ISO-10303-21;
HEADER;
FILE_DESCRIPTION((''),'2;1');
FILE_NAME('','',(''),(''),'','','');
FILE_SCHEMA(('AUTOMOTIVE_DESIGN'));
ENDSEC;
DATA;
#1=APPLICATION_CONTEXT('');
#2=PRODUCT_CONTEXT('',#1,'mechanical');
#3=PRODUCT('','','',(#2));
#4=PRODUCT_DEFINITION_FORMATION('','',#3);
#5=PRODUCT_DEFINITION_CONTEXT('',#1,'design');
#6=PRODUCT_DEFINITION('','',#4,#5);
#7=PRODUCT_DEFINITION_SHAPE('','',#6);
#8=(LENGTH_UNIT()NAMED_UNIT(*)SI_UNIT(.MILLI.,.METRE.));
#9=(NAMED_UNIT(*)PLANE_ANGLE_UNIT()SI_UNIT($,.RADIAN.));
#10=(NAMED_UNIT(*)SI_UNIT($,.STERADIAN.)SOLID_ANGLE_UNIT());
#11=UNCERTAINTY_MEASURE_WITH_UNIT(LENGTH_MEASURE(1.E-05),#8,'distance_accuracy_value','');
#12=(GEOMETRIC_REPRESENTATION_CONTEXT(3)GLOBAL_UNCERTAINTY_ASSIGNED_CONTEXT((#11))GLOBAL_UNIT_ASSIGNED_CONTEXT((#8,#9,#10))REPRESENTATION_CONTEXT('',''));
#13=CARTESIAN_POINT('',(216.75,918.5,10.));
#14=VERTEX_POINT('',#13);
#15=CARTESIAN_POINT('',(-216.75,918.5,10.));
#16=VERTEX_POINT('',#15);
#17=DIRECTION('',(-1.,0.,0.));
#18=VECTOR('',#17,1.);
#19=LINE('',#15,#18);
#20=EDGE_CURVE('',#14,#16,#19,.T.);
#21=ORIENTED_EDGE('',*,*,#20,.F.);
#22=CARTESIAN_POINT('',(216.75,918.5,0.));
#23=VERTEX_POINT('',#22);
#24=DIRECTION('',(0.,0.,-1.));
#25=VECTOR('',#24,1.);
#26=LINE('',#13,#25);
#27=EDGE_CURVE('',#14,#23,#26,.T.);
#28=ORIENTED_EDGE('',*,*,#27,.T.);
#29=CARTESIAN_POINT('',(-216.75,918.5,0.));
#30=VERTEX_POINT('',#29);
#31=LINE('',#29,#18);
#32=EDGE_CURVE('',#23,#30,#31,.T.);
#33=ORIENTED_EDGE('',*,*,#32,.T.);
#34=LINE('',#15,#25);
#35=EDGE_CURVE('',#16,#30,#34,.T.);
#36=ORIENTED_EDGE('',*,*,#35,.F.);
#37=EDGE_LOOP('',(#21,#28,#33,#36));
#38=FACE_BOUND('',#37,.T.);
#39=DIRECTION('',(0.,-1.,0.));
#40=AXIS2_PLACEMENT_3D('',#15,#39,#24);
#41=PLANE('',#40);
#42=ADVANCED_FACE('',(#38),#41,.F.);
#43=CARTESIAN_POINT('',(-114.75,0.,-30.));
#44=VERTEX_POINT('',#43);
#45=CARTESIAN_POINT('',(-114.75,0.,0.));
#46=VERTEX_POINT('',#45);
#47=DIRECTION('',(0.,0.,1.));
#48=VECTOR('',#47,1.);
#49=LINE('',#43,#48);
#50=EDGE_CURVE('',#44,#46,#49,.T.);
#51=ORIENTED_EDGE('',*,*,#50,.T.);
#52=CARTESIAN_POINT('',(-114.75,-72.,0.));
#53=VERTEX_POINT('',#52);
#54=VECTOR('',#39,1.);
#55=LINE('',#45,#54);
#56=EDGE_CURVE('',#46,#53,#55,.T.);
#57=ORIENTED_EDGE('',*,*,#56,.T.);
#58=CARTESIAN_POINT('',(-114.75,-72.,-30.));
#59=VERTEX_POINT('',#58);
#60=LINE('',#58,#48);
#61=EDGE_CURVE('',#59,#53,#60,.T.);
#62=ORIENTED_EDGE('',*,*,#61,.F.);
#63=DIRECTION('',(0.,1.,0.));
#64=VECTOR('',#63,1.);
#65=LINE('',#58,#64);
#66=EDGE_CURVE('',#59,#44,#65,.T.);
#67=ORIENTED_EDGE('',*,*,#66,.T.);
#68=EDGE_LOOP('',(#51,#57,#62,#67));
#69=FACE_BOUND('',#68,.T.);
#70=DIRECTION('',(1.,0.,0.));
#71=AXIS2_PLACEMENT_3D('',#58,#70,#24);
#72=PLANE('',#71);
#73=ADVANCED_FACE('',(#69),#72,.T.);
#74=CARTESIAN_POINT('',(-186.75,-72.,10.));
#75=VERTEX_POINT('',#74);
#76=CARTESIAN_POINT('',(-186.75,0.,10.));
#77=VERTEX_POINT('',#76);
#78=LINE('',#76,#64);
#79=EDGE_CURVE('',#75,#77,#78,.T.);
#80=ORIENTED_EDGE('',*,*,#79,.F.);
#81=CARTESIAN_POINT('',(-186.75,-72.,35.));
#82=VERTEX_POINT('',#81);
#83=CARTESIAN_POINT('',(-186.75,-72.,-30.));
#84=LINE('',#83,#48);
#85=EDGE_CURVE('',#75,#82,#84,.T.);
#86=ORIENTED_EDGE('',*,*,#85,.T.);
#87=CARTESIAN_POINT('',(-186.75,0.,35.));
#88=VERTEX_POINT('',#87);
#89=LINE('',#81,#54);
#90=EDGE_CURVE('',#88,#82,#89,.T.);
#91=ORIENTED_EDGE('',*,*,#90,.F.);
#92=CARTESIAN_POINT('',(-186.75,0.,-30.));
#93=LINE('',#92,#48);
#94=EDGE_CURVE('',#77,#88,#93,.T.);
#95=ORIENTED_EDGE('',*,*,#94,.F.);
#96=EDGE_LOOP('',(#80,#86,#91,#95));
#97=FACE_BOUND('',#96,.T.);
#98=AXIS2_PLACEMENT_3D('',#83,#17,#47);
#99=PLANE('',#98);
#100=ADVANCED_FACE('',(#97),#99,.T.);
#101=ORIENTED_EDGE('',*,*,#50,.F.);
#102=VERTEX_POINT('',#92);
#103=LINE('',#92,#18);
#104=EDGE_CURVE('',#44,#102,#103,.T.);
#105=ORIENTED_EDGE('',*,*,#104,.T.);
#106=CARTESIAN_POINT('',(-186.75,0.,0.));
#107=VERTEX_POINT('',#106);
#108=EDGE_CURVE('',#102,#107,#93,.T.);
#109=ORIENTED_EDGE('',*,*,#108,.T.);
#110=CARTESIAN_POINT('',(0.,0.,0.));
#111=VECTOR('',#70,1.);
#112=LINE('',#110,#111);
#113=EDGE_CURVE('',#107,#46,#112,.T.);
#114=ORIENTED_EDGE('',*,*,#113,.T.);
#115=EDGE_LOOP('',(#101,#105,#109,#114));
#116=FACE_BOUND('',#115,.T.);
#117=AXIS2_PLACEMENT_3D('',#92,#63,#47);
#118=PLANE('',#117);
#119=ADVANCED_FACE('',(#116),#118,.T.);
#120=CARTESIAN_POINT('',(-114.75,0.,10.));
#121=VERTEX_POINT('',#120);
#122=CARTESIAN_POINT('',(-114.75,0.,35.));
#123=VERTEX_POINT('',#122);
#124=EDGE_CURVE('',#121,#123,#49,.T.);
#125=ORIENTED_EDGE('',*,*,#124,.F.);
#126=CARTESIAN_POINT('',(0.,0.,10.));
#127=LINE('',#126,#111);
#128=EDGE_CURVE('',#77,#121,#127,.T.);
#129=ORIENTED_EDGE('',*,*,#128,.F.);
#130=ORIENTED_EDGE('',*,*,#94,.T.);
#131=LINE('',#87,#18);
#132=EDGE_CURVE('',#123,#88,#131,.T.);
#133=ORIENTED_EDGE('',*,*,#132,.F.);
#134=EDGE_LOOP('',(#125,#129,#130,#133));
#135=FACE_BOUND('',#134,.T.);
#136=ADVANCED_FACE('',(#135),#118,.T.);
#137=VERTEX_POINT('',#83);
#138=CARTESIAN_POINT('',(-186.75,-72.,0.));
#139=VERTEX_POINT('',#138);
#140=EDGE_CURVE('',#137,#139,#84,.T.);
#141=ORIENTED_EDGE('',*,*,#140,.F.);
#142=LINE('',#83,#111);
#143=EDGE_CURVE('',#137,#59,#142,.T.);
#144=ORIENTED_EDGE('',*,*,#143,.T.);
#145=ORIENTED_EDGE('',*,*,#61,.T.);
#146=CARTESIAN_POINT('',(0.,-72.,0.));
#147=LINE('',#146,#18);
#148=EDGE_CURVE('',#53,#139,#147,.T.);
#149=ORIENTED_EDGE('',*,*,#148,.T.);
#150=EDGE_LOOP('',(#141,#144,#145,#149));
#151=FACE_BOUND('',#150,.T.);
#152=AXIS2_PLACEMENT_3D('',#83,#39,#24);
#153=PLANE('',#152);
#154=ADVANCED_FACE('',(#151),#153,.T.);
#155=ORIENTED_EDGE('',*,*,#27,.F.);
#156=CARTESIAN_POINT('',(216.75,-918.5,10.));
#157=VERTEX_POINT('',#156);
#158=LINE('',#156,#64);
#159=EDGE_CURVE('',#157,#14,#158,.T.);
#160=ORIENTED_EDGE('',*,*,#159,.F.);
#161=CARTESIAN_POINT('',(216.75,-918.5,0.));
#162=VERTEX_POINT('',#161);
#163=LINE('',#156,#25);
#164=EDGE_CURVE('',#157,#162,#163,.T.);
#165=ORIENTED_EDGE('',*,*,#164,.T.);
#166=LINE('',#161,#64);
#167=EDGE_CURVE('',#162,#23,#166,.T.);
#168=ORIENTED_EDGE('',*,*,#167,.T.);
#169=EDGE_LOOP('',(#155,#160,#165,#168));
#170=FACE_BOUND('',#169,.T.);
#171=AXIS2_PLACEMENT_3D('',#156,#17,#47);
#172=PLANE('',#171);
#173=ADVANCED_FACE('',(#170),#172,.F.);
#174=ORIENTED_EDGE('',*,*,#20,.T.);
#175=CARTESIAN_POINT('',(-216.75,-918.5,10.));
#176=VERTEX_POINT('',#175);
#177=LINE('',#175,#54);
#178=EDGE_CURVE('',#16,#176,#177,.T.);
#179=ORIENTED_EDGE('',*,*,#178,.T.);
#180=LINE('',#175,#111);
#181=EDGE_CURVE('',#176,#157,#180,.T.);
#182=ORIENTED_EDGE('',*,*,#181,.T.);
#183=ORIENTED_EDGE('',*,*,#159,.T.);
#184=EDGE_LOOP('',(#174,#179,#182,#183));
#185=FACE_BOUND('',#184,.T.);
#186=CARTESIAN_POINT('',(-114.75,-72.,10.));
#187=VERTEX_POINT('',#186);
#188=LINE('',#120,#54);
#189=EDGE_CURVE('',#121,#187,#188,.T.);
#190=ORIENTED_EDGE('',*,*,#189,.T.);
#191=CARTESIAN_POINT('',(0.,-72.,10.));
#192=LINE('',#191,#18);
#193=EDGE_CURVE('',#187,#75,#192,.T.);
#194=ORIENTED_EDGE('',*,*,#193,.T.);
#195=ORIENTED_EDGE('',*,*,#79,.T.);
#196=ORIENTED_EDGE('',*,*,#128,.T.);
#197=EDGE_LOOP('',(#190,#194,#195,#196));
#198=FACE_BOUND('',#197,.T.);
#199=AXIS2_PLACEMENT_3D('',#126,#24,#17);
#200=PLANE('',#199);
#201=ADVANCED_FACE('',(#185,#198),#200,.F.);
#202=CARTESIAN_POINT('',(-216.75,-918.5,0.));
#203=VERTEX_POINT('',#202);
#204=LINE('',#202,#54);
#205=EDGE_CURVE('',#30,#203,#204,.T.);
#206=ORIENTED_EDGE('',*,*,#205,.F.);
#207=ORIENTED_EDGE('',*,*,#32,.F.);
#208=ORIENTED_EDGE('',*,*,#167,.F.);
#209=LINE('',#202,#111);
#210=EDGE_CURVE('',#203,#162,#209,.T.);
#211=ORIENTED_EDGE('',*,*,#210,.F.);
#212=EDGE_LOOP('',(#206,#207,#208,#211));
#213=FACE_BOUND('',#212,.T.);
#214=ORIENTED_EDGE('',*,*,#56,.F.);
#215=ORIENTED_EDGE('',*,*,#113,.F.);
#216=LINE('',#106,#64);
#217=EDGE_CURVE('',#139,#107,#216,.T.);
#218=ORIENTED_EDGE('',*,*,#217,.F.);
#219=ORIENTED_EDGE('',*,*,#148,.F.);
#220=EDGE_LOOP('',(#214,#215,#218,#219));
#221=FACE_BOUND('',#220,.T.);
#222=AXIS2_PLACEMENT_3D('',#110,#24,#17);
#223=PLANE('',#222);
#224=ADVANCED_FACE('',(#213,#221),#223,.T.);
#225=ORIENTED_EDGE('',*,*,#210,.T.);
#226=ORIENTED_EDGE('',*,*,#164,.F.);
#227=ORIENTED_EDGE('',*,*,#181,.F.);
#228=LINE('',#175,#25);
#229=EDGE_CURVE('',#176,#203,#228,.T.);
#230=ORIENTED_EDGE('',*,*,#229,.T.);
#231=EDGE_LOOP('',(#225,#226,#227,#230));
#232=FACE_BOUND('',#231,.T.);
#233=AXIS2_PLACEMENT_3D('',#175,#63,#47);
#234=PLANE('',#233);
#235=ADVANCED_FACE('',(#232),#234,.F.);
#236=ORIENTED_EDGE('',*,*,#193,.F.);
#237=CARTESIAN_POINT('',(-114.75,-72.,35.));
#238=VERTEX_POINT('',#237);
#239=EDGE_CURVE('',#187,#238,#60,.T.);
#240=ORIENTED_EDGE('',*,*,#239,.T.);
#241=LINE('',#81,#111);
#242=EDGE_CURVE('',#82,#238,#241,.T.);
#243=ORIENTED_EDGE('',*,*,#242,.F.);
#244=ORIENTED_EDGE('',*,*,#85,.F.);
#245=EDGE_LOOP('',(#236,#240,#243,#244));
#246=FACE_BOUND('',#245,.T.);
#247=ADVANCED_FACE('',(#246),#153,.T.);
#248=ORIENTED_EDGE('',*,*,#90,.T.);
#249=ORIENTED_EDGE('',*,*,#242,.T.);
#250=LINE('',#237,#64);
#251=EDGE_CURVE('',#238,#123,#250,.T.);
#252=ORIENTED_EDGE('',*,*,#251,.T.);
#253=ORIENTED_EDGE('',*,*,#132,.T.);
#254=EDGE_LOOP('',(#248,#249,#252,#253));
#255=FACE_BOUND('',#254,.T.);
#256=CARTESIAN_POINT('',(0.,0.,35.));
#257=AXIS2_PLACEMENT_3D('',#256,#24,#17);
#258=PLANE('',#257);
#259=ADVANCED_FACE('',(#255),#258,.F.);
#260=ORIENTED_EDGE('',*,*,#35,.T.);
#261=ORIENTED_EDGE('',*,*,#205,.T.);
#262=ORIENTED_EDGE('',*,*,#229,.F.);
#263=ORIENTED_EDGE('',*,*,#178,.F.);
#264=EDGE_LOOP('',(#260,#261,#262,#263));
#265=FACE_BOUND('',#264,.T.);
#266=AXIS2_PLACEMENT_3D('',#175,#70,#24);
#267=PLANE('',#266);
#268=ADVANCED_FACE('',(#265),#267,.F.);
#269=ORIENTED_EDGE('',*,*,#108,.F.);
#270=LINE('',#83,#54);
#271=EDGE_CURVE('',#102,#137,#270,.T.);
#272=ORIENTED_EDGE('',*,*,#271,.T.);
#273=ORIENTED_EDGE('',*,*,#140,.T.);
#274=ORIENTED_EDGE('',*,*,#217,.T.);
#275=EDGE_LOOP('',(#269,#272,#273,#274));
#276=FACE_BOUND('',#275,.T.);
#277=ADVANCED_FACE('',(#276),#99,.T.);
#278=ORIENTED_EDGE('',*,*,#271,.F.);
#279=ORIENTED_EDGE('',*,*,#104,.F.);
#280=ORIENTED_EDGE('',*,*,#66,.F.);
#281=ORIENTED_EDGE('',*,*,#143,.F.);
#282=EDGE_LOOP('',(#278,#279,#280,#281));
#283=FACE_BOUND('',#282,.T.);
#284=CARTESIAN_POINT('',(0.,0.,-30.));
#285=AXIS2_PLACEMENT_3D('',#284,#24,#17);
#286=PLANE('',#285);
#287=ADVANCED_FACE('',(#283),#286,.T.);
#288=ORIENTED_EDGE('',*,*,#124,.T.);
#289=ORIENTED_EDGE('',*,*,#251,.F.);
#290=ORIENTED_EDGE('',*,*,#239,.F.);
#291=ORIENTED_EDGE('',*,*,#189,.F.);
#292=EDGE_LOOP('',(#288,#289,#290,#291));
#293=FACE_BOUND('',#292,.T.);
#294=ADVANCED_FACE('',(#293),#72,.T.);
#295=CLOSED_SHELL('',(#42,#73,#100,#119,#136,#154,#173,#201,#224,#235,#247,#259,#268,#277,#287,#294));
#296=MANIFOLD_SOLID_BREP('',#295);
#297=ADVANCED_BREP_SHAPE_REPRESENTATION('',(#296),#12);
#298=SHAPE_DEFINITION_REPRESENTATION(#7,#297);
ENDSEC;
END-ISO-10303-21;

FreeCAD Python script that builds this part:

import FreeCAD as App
import Part
import Sketcher


def add_polygon(sketch, points):
    """Adds a closed chain of lines whose ends are joined by coincident constraints."""
    first, n = sketch.GeometryCount, len(points)
    for a, b in zip(points, points[1:] + points[:1]):
        sketch.addGeometry(Part.LineSegment(App.Vector(*a, 0), App.Vector(*b, 0)), False)
    for i in range(n):
        sketch.addConstraint(Sketcher.Constraint("Coincident", first + i, 2, first + (i + 1) % n, 1))

doc = App.newDocument("Part")
body = doc.addObject("PartDesign::Body", "Body")

# Sketch on XY plane
sketch1 = doc.addObject("Sketcher::SketchObject", "Sketch")
body.addObject(sketch1)
sketch1.AttachmentSupport = (doc.XY_Plane, [""])
sketch1.MapMode = "FlatFace"
add_polygon(sketch1, [(-216.75, 918.5), (-216.75, -918.5), (216.75, -918.5), (216.75, 918.5)])  # lines 0-3
sketch1.addConstraint([
    Sketcher.Constraint("Vertical", 0),
    Sketcher.Constraint("Horizontal", 1),
    Sketcher.Constraint("Vertical", 2),
    Sketcher.Constraint("Horizontal", 3),
    Sketcher.Constraint("Symmetric", 0, 2, 2, 2, -1, 1),
    Sketcher.Constraint("DistanceY", 0, 2, 0, 1, 1837.0),
    Sketcher.Constraint("DistanceX", 1, 1, 1, 2, 433.5),
])
pad1 = doc.addObject("PartDesign::Pad", "Pad")
body.addObject(pad1)
pad1.Profile = sketch1
pad1.Length = 10

# Sketch on XY plane
sketch2 = doc.addObject("Sketcher::SketchObject", "Sketch001")
body.addObject(sketch2)
sketch2.AttachmentSupport = (doc.XY_Plane, [""])
sketch2.MapMode = "FlatFace"
sketch2.AttachmentOffset = App.Placement(App.Vector(0, 0, 10), App.Rotation())
add_polygon(sketch2, [(-186.75, 0), (-186.75, -72), (-114.75, -72), (-114.75, 0)])  # lines 0-3
sketch2.addConstraint([
    Sketcher.Constraint("Vertical", 0),
    Sketcher.Constraint("Horizontal", 1),
    Sketcher.Constraint("Vertical", 2),
    Sketcher.Constraint("Horizontal", 3),
    Sketcher.Constraint("PointOnObject", 2, 2, -1),
    Sketcher.Constraint("Equal", 3, 0),
    Sketcher.Constraint("DistanceX", 1, 1, 1, 2, 72.0),
    Sketcher.Constraint("DistanceX", 0, 2, -1, 1, 186.75),
])
pad2 = doc.addObject("PartDesign::Pad", "Pad001")
body.addObject(pad2)
pad2.Profile = sketch2
pad2.Type = "TwoLengths"
pad2.Length = 25
pad2.Length2 = 40

doc.recompute()
